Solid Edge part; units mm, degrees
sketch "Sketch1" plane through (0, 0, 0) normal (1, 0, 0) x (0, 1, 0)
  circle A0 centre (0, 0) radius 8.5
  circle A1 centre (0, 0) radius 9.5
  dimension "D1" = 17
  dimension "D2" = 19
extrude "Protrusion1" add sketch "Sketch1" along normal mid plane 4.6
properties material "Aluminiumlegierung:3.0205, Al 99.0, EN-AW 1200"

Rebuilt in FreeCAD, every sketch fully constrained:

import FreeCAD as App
import Part
import Sketcher
from FreeCAD import Vector
Q = App.Units.Quantity

doc = App.newDocument("Part")
params = doc.addObject("Spreadsheet::Sheet", "Params")
for row, (alias, value) in enumerate([
    ("sketch1_diameter", "19 mm"),
    ("sketch1_diameter2", "17 mm"),
    ("pad1_length", "4.6 mm"),
], start=1):
    params.set(f"A{row}", alias)
    params.set(f"B{row}", "=" + value)
    params.setAlias(f"B{row}", alias)

body = doc.addObject("PartDesign::Body", "Body")

# Sketch on YZ plane
sketch1 = body.newObject("Sketcher::SketchObject", "Sketch")
sketch1.AttachmentSupport = (doc.getObject("YZ_Plane"), [""])
sketch1.MapMode = "FlatFace"
sketch1.addGeometry(Part.Circle(Vector(0, 0, 0), Vector(0, 0, 1), 9.5), False)
sketch1.addGeometry(Part.Circle(Vector(0, 0, 0), Vector(0, 0, 1), 8.5), False)
sketch1.addConstraint(Sketcher.Constraint("Coincident", 0, 3, -1, 1))
sketch1.addConstraint(Sketcher.Constraint("Coincident", 1, 3, -1, 1))
sketch1.addConstraint(Sketcher.Constraint("Diameter", 0, Q("19 mm")))
sketch1.addConstraint(Sketcher.Constraint("Diameter", 1, Q("17 mm")))
sketch1.setExpression("Constraints[2]", "Params.sketch1_diameter")
sketch1.setExpression("Constraints[3]", "Params.sketch1_diameter2")
pad1 = body.newObject("PartDesign::Pad", "Pad")
pad1.Profile = sketch1
pad1.setExpression("Length", "Params.pad1_length")
pad1.Midplane = True

doc.recompute()
